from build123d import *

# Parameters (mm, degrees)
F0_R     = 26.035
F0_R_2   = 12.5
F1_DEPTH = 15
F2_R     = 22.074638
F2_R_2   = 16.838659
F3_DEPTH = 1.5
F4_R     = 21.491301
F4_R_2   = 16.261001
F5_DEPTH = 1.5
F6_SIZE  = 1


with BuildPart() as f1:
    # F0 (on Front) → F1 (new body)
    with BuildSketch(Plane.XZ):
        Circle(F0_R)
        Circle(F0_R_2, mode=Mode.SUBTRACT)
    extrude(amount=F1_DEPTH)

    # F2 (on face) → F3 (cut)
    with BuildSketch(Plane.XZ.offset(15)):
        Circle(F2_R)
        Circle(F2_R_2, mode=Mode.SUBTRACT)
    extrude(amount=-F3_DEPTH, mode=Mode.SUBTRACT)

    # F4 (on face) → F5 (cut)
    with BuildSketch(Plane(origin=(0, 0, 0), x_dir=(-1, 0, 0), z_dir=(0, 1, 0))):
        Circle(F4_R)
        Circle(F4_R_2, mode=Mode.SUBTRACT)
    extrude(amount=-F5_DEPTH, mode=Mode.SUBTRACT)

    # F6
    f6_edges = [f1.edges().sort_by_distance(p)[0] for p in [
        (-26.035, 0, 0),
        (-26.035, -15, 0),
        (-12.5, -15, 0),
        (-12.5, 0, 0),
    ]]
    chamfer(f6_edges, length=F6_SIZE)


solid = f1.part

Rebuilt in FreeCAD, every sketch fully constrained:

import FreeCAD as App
import Part
import Sketcher

V = App.Vector


def edges_at(feature, points):
    """Names of the edges that pass closest to the given points."""
    edges = feature.Shape.Edges
    near = lambda p: min(range(len(edges)), key=lambda i: edges[i].distToShape(Part.Vertex(*p))[0])
    return sorted({f"Edge{near(p) + 1}" for p in points})

doc = App.newDocument("Part")
body = doc.addObject("PartDesign::Body", "Body")

# Sketch on XZ plane
sketch1 = doc.addObject("Sketcher::SketchObject", "Sketch")
body.addObject(sketch1)
sketch1.AttachmentSupport = (doc.XZ_Plane, [""])
sketch1.MapMode = "FlatFace"
sketch1.addGeometry(Part.Circle(V(0, 0, 0), V(0, 0, 1), 26), False)
sketch1.addGeometry(Part.Circle(V(0, 0, 0), V(0, 0, 1), 12), False)
sketch1.addConstraint(Sketcher.Constraint("Coincident", 0, 3, -1, 1))
sketch1.addConstraint(Sketcher.Constraint("Coincident", 1, 3, -1, 1))
sketch1.addConstraint(Sketcher.Constraint("Diameter", 1, 25.0))
sketch1.addConstraint(Sketcher.Constraint("Diameter", 0, 52.07))
pad1 = doc.addObject("PartDesign::Pad", "Pad")
body.addObject(pad1)
pad1.Profile = sketch1
pad1.Length = 15

# Sketch on XZ plane
sketch2 = doc.addObject("Sketcher::SketchObject", "Sketch001")
body.addObject(sketch2)
sketch2.AttachmentSupport = (doc.XZ_Plane, [""])
sketch2.MapMode = "FlatFace"
sketch2.AttachmentOffset = App.Placement(V(0, 0, 15), App.Rotation())
sketch2.addGeometry(Part.Circle(V(0, 0, 0), V(0, 0, 1), 22), False)
sketch2.addGeometry(Part.Circle(V(0, 0, 0), V(0, 0, 1), 17), False)
sketch2.addConstraint(Sketcher.Constraint("Coincident", 0, 3, -1, 1))
sketch2.addConstraint(Sketcher.Constraint("Coincident", 1, 3, -1, 1))
sketch2.addConstraint(Sketcher.Constraint("Diameter", 0, 44.149276))
sketch2.addConstraint(Sketcher.Constraint("Diameter", 1, 33.677318))
pocket1 = doc.addObject("PartDesign::Pocket", "Pocket")
body.addObject(pocket1)
pocket1.Profile = sketch2
pocket1.Length = 1.5

# Sketch on XZ plane
sketch3 = doc.addObject("Sketcher::SketchObject", "Sketch002")
body.addObject(sketch3)
sketch3.AttachmentSupport = (doc.XZ_Plane, [""])
sketch3.MapMode = "FlatFace"
sketch3.addGeometry(Part.Circle(V(0, 0, 0), V(0, 0, 1), 21), False)
sketch3.addGeometry(Part.Circle(V(0, 0, 0), V(0, 0, 1), 16), False)
sketch3.addConstraint(Sketcher.Constraint("Coincident", 0, 3, -1, 1))
sketch3.addConstraint(Sketcher.Constraint("Coincident", 1, 3, -1, 1))
sketch3.addConstraint(Sketcher.Constraint("Diameter", 0, 42.982602))
sketch3.addConstraint(Sketcher.Constraint("Diameter", 1, 32.522002))
pocket2 = doc.addObject("PartDesign::Pocket", "Pocket001")
body.addObject(pocket2)
pocket2.Profile = sketch3
pocket2.Length = 1.5
pocket2.Reversed = True
doc.recompute()

chamfer = doc.addObject("PartDesign::Chamfer", "Chamfer")
body.addObject(chamfer)
chamfer.Base = (pocket2, edges_at(pocket2, [
    (-26.035, 0, 0),
    (-26.035, -15, 0),
    (-12.5, -15, 0),
    (-12.5, 0, 0),
]))
chamfer.Size = 1

doc.recompute()
